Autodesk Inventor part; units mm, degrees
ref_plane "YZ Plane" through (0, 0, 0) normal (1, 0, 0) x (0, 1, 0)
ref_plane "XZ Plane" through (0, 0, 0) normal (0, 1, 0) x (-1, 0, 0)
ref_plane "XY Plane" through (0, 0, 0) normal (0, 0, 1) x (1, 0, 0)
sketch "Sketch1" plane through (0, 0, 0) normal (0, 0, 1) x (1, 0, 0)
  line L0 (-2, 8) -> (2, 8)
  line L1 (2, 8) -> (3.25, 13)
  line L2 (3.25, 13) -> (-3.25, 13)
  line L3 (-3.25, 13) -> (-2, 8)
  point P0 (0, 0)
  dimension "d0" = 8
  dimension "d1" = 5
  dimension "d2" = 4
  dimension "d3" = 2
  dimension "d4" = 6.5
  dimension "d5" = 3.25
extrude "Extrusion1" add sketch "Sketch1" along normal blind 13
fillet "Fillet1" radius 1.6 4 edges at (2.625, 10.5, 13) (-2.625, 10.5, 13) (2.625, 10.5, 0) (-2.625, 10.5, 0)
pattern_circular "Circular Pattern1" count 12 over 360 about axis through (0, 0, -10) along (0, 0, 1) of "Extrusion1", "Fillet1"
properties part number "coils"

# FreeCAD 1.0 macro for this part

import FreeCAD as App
import Part
import Sketcher
Q = App.Units.Quantity


def edges_at(feature, points):
    """Names of the edges that pass closest to the given points."""
    edges = feature.Shape.Edges
    near = lambda p: min(range(len(edges)), key=lambda i: edges[i].distToShape(Part.Vertex(*p))[0])
    return sorted({f"Edge{near(p) + 1}" for p in points})


def add_polygon(sketch, points):
    """Adds a closed chain of lines whose ends are joined by coincident constraints."""
    first, n = sketch.GeometryCount, len(points)
    for a, b in zip(points, points[1:] + points[:1]):
        sketch.addGeometry(Part.LineSegment(App.Vector(*a, 0), App.Vector(*b, 0)), False)
    for i in range(n):
        sketch.addConstraint(Sketcher.Constraint("Coincident", first + i, 2, first + (i + 1) % n, 1))

doc = App.newDocument("Part")
body = doc.addObject("PartDesign::Body", "Body")
body.AllowCompound = True

# Sketch on XY plane
sketch1 = body.newObject("Sketcher::SketchObject", "Sketch")
sketch1.AttachmentSupport = (doc.getObject("XY_Plane"), [""])
sketch1.MapMode = "FlatFace"
add_polygon(sketch1, [(-3.2, 13), (-2, 8), (2, 8), (3.2, 13)])  # lines 0-3
sketch1.addConstraint([
    Sketcher.Constraint("Horizontal", 1),
    Sketcher.Constraint("Horizontal", 3),
    Sketcher.Constraint("Equal", 0, 2),
    Sketcher.Constraint("DistanceX", 1, 1, 1, 2, Q("4 mm")),
    Sketcher.Constraint("DistanceX", 3, 2, 3, 1, Q("6.5 mm")),
    Sketcher.Constraint("DistanceX", 0, 2, -1, 1, Q("2 mm")),
    Sketcher.Constraint("DistanceY", -1, 1, 0, 2, Q("8 mm")),
    Sketcher.Constraint("DistanceY", 1, 2, 2, 2, Q("5 mm")),
])
pad1 = body.newObject("PartDesign::Pad", "Pad")
pad1.Profile = sketch1
pad1.Length = 13
doc.recompute()

fillet = body.newObject("PartDesign::Fillet", "Fillet")
fillet.Base = (pad1, edges_at(pad1, [
    (2.625, 10.5, 13),
    (-2.625, 10.5, 13),
    (2.625, 10.5, 0),
    (-2.625, 10.5, 0),
]))
fillet.Radius = 1.6
doc.recompute()

polarpattern = body.newObject("PartDesign::PolarPattern", "PolarPattern")
polarpattern.Originals = [pad1, fillet]
polarpattern.Axis = (doc.getObject("Z_Axis"), [""])
polarpattern.Angle = 360
polarpattern.Occurrences = 12
body.Tip = polarpattern

doc.recompute()
